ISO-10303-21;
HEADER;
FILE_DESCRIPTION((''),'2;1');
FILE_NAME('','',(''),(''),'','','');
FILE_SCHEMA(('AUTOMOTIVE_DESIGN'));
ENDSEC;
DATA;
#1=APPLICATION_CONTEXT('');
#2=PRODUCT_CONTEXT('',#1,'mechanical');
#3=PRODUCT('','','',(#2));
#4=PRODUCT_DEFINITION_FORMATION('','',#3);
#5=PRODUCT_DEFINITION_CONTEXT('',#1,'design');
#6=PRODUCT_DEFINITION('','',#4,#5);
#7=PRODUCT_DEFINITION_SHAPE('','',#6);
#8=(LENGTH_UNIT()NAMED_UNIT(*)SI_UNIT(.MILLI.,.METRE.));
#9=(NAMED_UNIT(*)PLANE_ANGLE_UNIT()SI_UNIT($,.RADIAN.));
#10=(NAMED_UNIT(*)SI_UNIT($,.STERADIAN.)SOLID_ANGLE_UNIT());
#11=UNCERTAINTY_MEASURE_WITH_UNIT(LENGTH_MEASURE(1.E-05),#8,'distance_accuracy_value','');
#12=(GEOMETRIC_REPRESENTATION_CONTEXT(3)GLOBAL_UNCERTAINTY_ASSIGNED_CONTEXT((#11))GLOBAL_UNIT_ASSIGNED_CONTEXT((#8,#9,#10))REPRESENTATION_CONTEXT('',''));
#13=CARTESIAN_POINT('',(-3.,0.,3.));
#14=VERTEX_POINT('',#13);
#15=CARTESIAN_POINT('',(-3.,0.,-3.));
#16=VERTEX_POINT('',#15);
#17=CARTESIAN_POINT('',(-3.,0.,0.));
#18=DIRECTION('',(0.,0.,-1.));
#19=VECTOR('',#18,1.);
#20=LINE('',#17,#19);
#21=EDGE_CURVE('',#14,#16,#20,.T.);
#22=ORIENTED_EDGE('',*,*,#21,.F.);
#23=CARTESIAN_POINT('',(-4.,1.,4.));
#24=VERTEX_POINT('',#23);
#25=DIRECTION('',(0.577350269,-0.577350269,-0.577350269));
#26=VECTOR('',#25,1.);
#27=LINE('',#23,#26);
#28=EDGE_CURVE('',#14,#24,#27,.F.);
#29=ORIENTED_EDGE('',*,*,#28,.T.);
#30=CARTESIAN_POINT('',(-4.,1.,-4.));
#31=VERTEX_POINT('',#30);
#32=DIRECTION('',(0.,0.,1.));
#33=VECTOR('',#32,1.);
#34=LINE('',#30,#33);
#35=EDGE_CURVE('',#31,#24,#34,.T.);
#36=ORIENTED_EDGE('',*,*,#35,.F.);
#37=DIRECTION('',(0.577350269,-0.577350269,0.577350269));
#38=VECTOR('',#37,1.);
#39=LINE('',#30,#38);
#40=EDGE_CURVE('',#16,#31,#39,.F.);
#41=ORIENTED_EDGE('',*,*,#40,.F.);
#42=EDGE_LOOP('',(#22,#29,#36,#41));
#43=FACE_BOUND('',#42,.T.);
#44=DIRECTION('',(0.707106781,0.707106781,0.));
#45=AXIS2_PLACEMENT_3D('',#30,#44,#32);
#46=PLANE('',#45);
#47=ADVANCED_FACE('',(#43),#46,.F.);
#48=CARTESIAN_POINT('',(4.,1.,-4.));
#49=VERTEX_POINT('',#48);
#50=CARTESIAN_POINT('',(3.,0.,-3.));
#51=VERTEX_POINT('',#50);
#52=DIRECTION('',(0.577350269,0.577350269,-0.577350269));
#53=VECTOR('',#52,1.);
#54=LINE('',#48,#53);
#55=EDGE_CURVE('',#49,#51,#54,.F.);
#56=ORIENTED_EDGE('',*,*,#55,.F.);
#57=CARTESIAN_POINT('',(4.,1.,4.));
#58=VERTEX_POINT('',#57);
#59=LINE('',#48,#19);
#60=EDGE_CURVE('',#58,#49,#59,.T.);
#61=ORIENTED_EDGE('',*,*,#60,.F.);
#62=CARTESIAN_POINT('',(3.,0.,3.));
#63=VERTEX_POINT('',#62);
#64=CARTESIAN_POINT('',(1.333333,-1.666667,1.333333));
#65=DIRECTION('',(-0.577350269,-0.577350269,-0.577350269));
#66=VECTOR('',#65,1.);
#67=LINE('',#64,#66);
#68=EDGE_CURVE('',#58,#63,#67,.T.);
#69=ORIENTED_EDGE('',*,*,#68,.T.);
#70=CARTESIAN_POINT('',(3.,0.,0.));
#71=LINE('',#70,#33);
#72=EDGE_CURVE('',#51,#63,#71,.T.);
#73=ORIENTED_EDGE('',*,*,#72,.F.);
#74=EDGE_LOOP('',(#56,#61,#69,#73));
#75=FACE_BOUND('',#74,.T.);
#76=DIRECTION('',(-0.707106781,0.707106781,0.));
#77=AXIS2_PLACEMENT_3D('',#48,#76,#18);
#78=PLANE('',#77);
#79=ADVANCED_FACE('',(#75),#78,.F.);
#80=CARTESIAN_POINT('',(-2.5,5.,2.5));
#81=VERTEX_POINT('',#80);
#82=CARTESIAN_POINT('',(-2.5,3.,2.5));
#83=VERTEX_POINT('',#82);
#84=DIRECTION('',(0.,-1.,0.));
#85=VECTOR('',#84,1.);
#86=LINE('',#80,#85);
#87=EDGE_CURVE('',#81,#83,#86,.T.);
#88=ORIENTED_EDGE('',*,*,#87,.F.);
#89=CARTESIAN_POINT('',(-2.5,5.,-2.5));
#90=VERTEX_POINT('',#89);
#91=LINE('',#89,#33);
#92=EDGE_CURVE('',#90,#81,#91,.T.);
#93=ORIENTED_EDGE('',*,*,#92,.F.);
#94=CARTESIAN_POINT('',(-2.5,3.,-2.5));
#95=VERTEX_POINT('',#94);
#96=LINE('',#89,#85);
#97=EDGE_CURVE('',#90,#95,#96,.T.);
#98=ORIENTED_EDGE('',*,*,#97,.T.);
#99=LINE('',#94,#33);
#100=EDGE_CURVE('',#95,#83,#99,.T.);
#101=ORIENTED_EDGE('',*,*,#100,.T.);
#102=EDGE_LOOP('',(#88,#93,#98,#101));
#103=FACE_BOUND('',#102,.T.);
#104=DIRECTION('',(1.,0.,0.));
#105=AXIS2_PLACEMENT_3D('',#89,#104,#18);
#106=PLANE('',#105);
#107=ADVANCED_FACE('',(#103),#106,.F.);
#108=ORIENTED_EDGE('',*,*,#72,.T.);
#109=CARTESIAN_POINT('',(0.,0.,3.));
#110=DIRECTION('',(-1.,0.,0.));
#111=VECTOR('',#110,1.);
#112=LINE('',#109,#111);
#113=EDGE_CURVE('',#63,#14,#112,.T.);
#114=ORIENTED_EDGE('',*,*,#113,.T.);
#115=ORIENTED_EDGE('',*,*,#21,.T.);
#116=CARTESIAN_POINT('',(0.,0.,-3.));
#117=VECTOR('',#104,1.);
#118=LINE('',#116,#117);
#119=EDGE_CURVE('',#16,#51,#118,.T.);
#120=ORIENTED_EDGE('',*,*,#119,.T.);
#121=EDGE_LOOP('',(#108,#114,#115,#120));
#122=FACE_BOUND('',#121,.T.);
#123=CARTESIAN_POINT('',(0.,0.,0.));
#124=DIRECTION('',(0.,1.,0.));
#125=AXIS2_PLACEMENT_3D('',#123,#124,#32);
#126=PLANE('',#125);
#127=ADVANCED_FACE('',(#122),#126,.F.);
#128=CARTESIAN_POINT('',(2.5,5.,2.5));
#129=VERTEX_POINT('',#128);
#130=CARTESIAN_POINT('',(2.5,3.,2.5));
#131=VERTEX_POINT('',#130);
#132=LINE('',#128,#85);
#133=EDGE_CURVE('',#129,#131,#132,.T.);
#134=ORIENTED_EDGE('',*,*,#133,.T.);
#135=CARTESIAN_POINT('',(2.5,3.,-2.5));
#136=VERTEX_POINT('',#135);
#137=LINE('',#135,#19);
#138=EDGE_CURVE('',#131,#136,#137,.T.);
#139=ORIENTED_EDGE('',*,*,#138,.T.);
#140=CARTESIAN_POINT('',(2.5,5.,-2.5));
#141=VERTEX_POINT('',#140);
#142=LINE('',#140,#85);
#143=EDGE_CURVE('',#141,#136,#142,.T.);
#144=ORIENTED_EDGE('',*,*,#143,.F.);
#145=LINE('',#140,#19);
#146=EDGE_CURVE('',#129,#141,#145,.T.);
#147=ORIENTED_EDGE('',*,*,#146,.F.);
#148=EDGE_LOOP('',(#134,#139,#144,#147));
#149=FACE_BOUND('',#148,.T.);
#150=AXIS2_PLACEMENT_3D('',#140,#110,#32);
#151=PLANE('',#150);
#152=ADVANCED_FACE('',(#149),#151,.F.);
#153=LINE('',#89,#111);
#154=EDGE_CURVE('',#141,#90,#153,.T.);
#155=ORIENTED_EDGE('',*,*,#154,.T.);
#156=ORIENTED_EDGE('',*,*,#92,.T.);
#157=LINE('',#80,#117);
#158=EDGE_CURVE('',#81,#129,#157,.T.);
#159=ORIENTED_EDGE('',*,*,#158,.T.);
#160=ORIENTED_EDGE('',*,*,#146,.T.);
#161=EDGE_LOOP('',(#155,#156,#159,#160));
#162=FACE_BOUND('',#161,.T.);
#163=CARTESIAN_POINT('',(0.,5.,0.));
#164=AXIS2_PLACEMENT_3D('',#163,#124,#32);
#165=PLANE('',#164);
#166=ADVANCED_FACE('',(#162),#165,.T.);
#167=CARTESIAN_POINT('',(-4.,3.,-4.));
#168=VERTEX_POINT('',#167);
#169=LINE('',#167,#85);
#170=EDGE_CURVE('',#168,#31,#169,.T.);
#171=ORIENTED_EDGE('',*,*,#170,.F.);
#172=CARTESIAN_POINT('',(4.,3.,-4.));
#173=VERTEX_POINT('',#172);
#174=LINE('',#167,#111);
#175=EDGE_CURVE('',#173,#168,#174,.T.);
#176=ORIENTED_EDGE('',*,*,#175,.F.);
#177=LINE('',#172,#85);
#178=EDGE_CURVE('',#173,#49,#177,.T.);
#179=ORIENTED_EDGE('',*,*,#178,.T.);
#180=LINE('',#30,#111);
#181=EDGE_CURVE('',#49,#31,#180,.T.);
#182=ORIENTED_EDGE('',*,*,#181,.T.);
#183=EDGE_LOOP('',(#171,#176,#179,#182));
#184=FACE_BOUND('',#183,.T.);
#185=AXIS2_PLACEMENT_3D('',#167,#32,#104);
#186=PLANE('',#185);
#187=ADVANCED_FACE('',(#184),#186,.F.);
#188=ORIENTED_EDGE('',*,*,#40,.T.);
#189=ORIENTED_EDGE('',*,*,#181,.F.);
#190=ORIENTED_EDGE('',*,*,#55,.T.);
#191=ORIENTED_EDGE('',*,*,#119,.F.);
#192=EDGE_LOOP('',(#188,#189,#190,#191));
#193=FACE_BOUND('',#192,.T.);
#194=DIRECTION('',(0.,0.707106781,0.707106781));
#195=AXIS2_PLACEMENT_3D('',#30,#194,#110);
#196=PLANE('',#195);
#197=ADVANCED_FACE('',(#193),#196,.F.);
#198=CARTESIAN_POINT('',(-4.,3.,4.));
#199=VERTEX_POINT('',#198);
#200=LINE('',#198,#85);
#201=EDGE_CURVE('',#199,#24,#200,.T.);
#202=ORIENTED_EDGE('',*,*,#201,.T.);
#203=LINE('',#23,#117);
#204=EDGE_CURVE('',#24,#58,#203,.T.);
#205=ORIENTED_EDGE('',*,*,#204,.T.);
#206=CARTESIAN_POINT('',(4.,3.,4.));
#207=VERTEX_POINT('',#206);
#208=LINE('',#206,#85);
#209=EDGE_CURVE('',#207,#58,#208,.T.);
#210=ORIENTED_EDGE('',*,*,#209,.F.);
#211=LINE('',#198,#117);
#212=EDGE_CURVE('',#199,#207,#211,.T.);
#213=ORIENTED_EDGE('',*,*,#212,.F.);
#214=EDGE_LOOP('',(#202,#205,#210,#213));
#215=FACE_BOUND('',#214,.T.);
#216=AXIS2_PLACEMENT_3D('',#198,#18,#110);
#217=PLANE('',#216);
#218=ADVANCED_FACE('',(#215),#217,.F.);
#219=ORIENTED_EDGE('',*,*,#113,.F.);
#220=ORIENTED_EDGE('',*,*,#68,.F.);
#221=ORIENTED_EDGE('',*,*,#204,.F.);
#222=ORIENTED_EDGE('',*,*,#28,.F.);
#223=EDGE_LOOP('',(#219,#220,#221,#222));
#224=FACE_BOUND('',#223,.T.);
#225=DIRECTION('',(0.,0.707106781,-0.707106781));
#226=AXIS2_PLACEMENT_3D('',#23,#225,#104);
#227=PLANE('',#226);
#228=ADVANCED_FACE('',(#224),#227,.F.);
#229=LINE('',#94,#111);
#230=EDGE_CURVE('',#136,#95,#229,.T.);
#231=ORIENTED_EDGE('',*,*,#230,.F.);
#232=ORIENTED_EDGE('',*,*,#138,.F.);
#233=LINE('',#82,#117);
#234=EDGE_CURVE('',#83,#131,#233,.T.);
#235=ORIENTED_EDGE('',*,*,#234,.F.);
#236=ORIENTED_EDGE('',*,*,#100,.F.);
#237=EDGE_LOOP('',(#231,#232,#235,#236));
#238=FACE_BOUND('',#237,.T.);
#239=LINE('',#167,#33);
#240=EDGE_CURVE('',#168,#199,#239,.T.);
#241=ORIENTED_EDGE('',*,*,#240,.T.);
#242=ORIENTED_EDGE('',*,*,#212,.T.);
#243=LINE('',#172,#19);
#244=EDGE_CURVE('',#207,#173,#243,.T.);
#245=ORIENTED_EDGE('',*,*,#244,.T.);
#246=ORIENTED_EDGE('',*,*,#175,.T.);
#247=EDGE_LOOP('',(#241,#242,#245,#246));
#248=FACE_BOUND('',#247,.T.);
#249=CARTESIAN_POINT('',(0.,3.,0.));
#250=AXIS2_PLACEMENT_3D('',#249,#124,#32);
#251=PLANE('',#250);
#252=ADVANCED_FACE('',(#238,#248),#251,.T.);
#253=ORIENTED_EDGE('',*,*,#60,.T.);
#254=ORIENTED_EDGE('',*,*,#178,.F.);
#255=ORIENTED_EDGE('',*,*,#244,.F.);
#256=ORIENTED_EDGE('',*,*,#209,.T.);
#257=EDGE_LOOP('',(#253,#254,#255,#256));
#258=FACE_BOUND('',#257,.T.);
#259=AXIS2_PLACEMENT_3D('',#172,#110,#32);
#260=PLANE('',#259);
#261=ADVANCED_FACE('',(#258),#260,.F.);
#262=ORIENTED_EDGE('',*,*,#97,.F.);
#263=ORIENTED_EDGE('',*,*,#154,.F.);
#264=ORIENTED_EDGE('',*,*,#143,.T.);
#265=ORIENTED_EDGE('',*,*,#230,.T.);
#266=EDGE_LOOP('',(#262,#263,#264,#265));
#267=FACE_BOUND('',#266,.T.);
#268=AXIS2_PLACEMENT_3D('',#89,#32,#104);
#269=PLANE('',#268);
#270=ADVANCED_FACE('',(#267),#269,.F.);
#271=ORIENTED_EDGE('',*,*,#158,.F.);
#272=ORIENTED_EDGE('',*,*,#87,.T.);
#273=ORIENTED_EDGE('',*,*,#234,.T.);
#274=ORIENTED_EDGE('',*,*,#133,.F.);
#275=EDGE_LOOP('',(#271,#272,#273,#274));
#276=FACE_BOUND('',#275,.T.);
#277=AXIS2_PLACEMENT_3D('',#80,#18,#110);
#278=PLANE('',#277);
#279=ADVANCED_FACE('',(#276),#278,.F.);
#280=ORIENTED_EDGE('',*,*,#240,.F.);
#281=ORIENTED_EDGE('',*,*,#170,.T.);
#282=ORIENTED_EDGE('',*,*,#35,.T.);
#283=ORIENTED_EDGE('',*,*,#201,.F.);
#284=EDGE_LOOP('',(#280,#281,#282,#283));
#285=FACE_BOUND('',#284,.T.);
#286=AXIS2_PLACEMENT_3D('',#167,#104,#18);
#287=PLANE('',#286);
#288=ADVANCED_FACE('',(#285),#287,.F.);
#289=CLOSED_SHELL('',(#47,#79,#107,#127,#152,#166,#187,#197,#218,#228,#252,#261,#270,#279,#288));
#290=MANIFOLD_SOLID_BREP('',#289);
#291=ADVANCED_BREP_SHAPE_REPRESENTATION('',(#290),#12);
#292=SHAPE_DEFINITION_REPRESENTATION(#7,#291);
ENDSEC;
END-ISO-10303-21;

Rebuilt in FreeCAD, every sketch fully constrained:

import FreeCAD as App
import Part
import Sketcher


def edges_at(feature, points):
    """Names of the edges that pass closest to the given points."""
    edges = feature.Shape.Edges
    near = lambda p: min(range(len(edges)), key=lambda i: edges[i].distToShape(Part.Vertex(*p))[0])
    return sorted({f"Edge{near(p) + 1}" for p in points})


def add_polygon(sketch, points):
    """Adds a closed chain of lines whose ends are joined by coincident constraints."""
    first, n = sketch.GeometryCount, len(points)
    for a, b in zip(points, points[1:] + points[:1]):
        sketch.addGeometry(Part.LineSegment(App.Vector(*a, 0), App.Vector(*b, 0)), False)
    for i in range(n):
        sketch.addConstraint(Sketcher.Constraint("Coincident", first + i, 2, first + (i + 1) % n, 1))

doc = App.newDocument("Part")
body = doc.addObject("PartDesign::Body", "Body")

# Sketch on XZ plane
sketch1 = doc.addObject("Sketcher::SketchObject", "Sketch")
body.addObject(sketch1)
sketch1.AttachmentSupport = (doc.XZ_Plane, [""])
sketch1.MapMode = "FlatFace"
add_polygon(sketch1, [(-4, -4), (-4, 4), (4, 4), (4, -4)])  # lines 0-3
sketch1.addConstraint([
    Sketcher.Constraint("Vertical", 0),
    Sketcher.Constraint("Horizontal", 1),
    Sketcher.Constraint("Vertical", 2),
    Sketcher.Constraint("Horizontal", 3),
    Sketcher.Constraint("Symmetric", 0, 2, 2, 2, -1, 1),
    Sketcher.Constraint("Equal", 3, 0),
    Sketcher.Constraint("DistanceX", 1, 1, 1, 2, 8.0),
])
pad1 = doc.addObject("PartDesign::Pad", "Pad")
body.addObject(pad1)
pad1.Profile = sketch1
pad1.Length = 3
pad1.Reversed = True
doc.recompute()

chamfer = doc.addObject("PartDesign::Chamfer", "Chamfer")
body.addObject(chamfer)
chamfer.Base = (pad1, edges_at(pad1, [
    (0, 0, 4),
    (-4, 0, 0),
    (0, 0, -4),
    (4, 0, 0),
]))
chamfer.Size = 1

# Sketch on XZ plane
sketch2 = doc.addObject("Sketcher::SketchObject", "Sketch001")
body.addObject(sketch2)
sketch2.AttachmentSupport = (doc.XZ_Plane, [""])
sketch2.MapMode = "FlatFace"
sketch2.AttachmentOffset = App.Placement(App.Vector(0, 0, -3), App.Rotation())
add_polygon(sketch2, [(-2, -2), (-2, 2), (2, 2), (2, -2)])  # lines 0-3
sketch2.addConstraint([
    Sketcher.Constraint("Vertical", 0),
    Sketcher.Constraint("Horizontal", 1),
    Sketcher.Constraint("Vertical", 2),
    Sketcher.Constraint("Horizontal", 3),
    Sketcher.Constraint("Symmetric", 0, 2, 2, 2, -1, 1),
    Sketcher.Constraint("Equal", 3, 0),
    Sketcher.Constraint("DistanceX", 1, 1, 1, 2, 5.0),
])
pad2 = doc.addObject("PartDesign::Pad", "Pad001")
body.addObject(pad2)
pad2.Profile = sketch2
pad2.Length = 2
pad2.Reversed = True

doc.recompute()
